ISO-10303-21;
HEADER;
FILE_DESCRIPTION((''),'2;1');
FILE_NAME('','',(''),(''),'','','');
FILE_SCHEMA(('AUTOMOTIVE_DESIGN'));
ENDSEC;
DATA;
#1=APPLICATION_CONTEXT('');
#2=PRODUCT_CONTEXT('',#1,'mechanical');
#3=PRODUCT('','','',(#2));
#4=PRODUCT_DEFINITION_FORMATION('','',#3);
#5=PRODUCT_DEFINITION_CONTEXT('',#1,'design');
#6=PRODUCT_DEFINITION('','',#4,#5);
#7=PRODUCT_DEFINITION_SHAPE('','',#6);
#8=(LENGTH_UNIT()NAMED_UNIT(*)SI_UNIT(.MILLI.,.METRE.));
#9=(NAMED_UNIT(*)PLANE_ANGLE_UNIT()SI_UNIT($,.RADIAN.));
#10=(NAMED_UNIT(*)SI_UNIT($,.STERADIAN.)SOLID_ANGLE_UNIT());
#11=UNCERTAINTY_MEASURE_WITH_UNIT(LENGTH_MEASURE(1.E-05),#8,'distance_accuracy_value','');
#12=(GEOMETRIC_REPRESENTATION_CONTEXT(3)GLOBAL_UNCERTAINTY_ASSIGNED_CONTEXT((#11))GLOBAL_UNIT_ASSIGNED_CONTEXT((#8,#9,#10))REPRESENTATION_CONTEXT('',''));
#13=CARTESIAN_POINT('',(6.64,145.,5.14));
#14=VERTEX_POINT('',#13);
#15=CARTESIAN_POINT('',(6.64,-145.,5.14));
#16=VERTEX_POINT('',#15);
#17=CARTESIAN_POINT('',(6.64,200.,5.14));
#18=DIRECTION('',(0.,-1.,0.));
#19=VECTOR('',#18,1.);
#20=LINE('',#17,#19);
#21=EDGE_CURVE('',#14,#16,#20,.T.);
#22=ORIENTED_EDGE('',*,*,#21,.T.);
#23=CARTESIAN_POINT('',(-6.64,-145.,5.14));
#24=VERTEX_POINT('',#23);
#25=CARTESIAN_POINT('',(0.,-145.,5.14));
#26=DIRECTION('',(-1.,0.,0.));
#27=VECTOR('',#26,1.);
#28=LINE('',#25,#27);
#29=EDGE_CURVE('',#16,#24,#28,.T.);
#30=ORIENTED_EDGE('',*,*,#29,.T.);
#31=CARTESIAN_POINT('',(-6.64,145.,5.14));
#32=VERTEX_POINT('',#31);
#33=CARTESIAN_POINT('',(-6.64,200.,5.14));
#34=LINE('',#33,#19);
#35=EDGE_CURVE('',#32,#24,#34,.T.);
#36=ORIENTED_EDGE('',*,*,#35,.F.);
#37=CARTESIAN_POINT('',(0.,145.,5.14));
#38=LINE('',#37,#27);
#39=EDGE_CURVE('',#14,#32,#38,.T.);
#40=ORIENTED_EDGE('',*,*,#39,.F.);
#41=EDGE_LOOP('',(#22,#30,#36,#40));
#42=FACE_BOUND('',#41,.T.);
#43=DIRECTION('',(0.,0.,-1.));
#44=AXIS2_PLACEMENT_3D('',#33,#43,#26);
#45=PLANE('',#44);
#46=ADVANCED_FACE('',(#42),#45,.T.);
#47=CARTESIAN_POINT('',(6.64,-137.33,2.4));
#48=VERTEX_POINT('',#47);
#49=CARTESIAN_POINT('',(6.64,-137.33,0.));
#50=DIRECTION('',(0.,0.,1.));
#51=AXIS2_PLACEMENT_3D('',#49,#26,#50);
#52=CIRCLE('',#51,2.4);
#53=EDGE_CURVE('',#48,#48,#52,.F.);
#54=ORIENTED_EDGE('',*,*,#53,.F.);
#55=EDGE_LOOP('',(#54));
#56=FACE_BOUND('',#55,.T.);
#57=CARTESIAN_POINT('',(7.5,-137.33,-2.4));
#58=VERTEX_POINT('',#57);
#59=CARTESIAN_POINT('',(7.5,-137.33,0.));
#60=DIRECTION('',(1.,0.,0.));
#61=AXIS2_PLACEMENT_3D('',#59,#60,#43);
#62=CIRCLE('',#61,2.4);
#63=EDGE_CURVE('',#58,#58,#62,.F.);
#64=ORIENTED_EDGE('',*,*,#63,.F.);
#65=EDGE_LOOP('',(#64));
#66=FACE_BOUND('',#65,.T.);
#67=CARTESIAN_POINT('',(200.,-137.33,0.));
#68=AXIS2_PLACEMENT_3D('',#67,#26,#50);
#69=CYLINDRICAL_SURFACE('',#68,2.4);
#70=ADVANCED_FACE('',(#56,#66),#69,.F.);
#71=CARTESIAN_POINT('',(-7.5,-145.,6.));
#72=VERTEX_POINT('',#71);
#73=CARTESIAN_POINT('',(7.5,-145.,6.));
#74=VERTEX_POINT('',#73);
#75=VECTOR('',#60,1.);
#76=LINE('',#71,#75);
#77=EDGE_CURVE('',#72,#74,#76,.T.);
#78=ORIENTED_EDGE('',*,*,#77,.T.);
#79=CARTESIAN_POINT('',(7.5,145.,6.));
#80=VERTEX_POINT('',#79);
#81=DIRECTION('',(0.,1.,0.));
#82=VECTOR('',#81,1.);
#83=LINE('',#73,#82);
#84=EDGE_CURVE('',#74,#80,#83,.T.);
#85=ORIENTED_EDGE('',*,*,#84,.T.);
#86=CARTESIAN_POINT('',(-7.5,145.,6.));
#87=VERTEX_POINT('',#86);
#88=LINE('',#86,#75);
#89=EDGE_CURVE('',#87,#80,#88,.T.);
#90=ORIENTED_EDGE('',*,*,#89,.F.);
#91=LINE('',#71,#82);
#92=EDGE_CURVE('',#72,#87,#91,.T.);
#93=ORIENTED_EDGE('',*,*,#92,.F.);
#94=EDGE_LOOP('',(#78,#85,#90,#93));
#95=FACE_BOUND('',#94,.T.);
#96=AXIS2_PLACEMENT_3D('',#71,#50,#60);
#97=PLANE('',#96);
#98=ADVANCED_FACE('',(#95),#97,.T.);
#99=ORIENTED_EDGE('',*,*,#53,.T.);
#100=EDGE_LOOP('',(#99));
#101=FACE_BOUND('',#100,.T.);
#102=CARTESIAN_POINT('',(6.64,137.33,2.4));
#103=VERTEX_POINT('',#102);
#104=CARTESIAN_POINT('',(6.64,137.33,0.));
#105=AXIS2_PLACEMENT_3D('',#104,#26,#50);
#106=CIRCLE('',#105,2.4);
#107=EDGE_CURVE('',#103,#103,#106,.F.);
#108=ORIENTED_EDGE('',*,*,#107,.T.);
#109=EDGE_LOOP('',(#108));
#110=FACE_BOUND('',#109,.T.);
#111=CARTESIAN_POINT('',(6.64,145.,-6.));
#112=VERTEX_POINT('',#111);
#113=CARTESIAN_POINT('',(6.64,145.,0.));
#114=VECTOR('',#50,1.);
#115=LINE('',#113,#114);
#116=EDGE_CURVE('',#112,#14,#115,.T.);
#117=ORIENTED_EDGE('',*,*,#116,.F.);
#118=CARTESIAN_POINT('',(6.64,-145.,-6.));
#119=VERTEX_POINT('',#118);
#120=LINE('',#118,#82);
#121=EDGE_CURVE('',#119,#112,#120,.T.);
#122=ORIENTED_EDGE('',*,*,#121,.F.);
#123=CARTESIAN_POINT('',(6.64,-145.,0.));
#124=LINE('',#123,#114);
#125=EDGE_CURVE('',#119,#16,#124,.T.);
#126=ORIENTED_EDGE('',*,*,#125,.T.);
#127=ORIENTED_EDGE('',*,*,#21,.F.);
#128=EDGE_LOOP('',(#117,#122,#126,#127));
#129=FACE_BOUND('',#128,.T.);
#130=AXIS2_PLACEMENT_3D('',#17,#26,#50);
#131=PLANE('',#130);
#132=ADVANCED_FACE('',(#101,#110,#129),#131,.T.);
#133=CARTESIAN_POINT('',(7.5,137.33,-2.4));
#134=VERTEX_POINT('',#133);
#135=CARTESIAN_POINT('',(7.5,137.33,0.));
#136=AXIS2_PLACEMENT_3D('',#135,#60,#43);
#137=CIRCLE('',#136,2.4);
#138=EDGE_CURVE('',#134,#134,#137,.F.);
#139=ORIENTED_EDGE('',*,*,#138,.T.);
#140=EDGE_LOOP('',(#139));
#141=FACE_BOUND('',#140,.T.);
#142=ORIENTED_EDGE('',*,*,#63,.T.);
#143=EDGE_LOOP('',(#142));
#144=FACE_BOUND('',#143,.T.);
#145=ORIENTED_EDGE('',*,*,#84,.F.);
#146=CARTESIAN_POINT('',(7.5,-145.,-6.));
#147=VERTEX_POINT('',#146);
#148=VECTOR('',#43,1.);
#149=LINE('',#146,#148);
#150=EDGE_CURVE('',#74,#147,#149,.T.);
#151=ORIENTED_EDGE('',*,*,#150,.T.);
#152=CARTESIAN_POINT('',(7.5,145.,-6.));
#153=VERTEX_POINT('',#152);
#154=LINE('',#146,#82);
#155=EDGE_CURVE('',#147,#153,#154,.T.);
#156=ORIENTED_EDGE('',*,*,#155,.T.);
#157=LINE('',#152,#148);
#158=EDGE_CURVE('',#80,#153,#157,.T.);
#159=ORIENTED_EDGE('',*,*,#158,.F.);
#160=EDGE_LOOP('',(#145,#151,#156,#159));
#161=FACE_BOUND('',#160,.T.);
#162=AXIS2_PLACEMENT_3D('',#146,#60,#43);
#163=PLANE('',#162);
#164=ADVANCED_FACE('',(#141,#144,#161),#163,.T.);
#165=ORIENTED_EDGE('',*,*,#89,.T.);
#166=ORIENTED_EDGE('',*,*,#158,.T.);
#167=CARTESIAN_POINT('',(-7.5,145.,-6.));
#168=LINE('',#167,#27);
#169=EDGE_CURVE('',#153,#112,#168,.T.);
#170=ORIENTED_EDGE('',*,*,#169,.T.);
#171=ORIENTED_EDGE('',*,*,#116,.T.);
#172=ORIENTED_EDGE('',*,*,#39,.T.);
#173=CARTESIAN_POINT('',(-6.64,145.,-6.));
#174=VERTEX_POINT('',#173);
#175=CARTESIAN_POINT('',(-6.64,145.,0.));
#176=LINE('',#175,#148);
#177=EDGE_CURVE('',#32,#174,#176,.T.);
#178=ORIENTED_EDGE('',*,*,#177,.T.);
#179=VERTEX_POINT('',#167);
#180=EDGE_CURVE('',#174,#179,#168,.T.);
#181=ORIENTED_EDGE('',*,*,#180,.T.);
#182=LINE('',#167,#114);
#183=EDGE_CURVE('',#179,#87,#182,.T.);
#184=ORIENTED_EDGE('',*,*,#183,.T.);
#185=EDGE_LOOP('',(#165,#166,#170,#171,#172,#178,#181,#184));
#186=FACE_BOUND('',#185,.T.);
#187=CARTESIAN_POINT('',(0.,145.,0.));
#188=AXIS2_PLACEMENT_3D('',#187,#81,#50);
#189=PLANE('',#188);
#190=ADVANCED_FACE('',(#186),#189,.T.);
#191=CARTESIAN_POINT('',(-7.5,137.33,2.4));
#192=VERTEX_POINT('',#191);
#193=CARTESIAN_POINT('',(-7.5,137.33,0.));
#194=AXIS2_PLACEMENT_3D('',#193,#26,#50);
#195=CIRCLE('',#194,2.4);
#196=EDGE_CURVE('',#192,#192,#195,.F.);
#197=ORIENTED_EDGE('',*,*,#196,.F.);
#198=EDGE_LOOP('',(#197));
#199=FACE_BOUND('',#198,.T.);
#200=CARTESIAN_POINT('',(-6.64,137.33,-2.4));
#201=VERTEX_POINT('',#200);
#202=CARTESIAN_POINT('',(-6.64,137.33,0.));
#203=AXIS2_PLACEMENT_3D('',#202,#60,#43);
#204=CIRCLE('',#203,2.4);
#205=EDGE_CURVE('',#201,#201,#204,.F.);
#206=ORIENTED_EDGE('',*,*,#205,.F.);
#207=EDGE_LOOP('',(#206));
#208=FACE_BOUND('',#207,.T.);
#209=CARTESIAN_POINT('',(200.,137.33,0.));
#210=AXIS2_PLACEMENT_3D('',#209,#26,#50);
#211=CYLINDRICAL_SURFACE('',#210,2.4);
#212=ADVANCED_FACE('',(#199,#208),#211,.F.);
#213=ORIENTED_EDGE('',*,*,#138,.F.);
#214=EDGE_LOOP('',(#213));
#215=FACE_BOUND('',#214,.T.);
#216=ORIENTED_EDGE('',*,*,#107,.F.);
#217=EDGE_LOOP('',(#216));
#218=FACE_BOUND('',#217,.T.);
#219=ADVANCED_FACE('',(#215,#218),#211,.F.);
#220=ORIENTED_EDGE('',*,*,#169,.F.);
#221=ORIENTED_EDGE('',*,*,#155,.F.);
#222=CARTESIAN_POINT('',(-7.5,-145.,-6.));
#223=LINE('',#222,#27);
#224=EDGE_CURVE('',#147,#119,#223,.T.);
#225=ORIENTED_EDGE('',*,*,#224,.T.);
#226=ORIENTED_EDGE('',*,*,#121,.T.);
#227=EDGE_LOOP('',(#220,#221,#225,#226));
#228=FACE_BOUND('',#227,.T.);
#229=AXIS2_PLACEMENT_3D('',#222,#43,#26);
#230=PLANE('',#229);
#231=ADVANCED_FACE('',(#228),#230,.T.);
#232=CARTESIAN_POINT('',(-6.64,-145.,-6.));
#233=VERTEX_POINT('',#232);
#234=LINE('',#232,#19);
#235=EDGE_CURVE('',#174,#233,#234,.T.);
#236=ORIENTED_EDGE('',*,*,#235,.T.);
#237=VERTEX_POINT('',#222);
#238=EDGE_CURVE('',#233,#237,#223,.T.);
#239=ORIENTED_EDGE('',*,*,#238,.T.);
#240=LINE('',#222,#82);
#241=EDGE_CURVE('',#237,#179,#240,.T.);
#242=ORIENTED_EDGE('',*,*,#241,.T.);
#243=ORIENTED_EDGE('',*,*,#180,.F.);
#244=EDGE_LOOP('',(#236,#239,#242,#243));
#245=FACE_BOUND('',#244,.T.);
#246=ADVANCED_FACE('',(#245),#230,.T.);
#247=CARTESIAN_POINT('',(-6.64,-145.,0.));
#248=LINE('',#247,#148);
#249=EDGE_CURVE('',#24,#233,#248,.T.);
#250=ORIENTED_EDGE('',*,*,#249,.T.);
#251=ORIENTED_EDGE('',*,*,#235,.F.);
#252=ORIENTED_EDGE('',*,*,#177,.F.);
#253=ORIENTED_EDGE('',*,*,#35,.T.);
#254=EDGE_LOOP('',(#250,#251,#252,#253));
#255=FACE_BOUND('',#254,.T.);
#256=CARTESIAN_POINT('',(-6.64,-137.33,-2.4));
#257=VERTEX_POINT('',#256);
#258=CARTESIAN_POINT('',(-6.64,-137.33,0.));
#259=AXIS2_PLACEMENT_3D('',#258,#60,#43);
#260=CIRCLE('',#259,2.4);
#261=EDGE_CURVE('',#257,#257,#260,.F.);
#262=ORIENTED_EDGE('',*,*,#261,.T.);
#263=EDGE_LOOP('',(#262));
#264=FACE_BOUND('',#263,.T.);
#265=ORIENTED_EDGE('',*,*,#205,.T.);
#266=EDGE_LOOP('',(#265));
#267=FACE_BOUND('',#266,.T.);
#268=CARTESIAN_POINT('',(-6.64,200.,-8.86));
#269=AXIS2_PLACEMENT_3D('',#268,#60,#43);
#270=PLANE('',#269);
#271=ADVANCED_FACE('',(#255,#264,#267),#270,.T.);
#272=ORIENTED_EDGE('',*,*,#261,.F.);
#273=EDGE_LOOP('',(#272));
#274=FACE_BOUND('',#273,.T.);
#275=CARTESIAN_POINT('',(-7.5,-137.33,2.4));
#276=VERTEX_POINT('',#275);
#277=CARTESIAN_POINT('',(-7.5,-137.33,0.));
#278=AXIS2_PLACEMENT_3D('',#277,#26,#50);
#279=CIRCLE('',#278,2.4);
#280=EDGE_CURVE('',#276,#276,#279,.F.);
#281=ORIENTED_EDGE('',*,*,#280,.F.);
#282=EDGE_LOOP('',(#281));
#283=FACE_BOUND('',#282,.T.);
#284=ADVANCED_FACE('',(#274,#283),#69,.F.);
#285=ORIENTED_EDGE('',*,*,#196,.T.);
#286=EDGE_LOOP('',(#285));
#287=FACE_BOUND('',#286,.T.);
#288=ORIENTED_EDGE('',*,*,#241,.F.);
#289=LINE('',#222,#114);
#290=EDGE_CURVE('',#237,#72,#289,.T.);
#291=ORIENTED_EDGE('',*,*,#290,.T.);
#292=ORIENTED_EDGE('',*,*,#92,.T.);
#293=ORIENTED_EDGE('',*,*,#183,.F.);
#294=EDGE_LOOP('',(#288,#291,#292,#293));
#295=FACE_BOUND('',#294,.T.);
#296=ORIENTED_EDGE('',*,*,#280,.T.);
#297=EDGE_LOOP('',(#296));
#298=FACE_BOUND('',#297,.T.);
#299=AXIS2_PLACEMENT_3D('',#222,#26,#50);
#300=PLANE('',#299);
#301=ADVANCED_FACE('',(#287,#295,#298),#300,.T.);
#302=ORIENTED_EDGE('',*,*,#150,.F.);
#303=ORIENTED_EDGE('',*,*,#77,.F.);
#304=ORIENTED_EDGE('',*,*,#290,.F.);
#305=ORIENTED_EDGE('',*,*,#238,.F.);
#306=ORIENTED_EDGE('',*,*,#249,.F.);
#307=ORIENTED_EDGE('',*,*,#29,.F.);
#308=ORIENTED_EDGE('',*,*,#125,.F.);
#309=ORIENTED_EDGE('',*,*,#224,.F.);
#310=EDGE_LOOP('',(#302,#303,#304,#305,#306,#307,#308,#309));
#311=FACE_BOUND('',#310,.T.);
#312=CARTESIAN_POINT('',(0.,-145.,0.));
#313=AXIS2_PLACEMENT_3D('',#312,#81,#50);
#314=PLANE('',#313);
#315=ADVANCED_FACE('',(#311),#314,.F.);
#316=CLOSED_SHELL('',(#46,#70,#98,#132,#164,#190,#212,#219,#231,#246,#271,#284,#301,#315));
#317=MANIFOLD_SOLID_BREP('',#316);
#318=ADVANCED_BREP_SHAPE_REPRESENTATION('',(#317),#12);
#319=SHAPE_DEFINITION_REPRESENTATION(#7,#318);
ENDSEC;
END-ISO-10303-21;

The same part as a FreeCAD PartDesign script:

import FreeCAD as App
import Part
import Sketcher

V = App.Vector


def add_polygon(sketch, points):
    """Adds a closed chain of lines whose ends are joined by coincident constraints."""
    first, n = sketch.GeometryCount, len(points)
    for a, b in zip(points, points[1:] + points[:1]):
        sketch.addGeometry(Part.LineSegment(App.Vector(*a, 0), App.Vector(*b, 0)), False)
    for i in range(n):
        sketch.addConstraint(Sketcher.Constraint("Coincident", first + i, 2, first + (i + 1) % n, 1))

doc = App.newDocument("Part")
params = doc.addObject("Spreadsheet::Sheet", "Params")
for row, (alias, value) in enumerate([
    ("sketch1_width", "15 mm"),
    ("sketch1_height", "12 mm"),
    ("pad1_length", "145 mm"),
    ("pad1_length2", "145 mm"),
    ("sketch2_height", "14 mm"),
    ("sketch2_width", "13.28 mm"),
    ("sketch3_diameter", "4.8 mm"),
], start=1):
    params.set(f"A{row}", alias)
    params.set(f"B{row}", "=" + value)
    params.setAlias(f"B{row}", alias)

body = doc.addObject("PartDesign::Body", "Body")

# Sketch on XZ plane
sketch1 = body.newObject("Sketcher::SketchObject", "Sketch")
sketch1.AttachmentSupport = (doc.getObject("XZ_Plane"), [""])
sketch1.MapMode = "FlatFace"
add_polygon(sketch1, [(-8, -6), (-8, 6), (8, 6), (8, -6)])  # lines 0-3
sketch1.addConstraint([
    Sketcher.Constraint("Vertical", 0),
    Sketcher.Constraint("Horizontal", 1),
    Sketcher.Constraint("Vertical", 2),
    Sketcher.Constraint("Horizontal", 3),
    Sketcher.Constraint("Symmetric", 0, 2, 2, 2, -1, 1),
    Sketcher.Constraint("DistanceX", 1, 1, 1, 2, 15.0),
    Sketcher.Constraint("DistanceY", 0, 1, 0, 2, 12.0),
])
sketch1.setExpression("Constraints[9]", "Params.sketch1_width")
sketch1.setExpression("Constraints[10]", "Params.sketch1_height")
pad1 = body.newObject("PartDesign::Pad", "Pad")
pad1.Profile = sketch1
pad1.Type = "TwoLengths"
pad1.setExpression("Length", "Params.pad1_length")
pad1.setExpression("Length2", "Params.pad1_length2")
pad1.Reversed = True

# Sketch on XZ plane
sketch2 = body.newObject("Sketcher::SketchObject", "Sketch001")
sketch2.AttachmentSupport = (doc.getObject("XZ_Plane"), [""])
sketch2.MapMode = "FlatFace"
add_polygon(sketch2, [(-7, -9), (-7, 5), (7, 5), (7, -9)])  # lines 0-3
sketch2.addConstraint([
    Sketcher.Constraint("Vertical", 0),
    Sketcher.Constraint("Horizontal", 1),
    Sketcher.Constraint("Vertical", 2),
    Sketcher.Constraint("Horizontal", 3),
    Sketcher.Constraint("DistanceY", 0, 1, 0, 2, 14.0),
    Sketcher.Constraint("DistanceX", 1, 1, 1, 2, 13.28),
    Sketcher.Constraint("DistanceX", 0, 2, -1, 1, 6.64),
    Sketcher.Constraint("DistanceY", -1, 1, 0, 2, 5.14),
])
sketch2.setExpression("Constraints[8]", "Params.sketch2_height")
sketch2.setExpression("Constraints[9]", "Params.sketch2_width")
pocket1 = body.newObject("PartDesign::Pocket", "Pocket")
pocket1.Profile = sketch2
pocket1.Type = "ThroughAll"
pocket1.Midplane = True

# Sketch on YZ plane
sketch3 = body.newObject("Sketcher::SketchObject", "Sketch002")
sketch3.AttachmentSupport = (doc.getObject("YZ_Plane"), [""])
sketch3.MapMode = "FlatFace"
sketch3.addGeometry([
    Part.Circle(V(137.3, 0, 0), V(0, 0, 1), 2.4),
    Part.Circle(V(-137.3, 0, 0), V(0, 0, 1), 2.4),
], False)
sketch3.addConstraint([
    Sketcher.Constraint("Equal", 0, 1),
    Sketcher.Constraint("Symmetric", 0, 3, 1, 3, -1, 1),
    Sketcher.Constraint("PointOnObject", 0, 3, -1),
    Sketcher.Constraint("Diameter", 0, 4.8),
    Sketcher.Constraint("DistanceX", -1, 1, 0, 3, 137.33),
])
sketch3.setExpression("Constraints[3]", "Params.sketch3_diameter")
pocket2 = body.newObject("PartDesign::Pocket", "Pocket001")
pocket2.Profile = sketch3
pocket2.Type = "ThroughAll"
pocket2.Midplane = True

doc.recompute()
